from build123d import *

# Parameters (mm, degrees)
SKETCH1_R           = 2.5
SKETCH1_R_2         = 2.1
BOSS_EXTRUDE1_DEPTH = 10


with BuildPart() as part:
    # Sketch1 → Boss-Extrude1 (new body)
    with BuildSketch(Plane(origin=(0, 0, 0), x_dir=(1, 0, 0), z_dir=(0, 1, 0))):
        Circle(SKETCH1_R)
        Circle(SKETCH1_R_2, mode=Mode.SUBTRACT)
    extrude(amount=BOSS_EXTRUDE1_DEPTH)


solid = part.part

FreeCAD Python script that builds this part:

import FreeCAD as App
import Part
import Sketcher
from FreeCAD import Vector

doc = App.newDocument("Part")
body = doc.addObject("PartDesign::Body", "Body")

# Sketch on XZ plane
sketch1 = doc.addObject("Sketcher::SketchObject", "Sketch")
body.addObject(sketch1)
sketch1.AttachmentSupport = (doc.XZ_Plane, [""])
sketch1.MapMode = "FlatFace"
sketch1.addGeometry(Part.Circle(Vector(0, 0, 0), Vector(0, 0, 1), 2.5), False)
sketch1.addGeometry(Part.Circle(Vector(0, 0, 0), Vector(0, 0, 1), 2.1), False)
sketch1.addConstraint(Sketcher.Constraint("Coincident", 0, 3, -1, 1))
sketch1.addConstraint(Sketcher.Constraint("Coincident", 1, 3, -1, 1))
sketch1.addConstraint(Sketcher.Constraint("Diameter", 0, 5.0))
sketch1.addConstraint(Sketcher.Constraint("Diameter", 1, 4.2))
pad1 = doc.addObject("PartDesign::Pad", "Pad")
body.addObject(pad1)
pad1.Profile = sketch1
pad1.Length = 10
pad1.Reversed = True

doc.recompute()
